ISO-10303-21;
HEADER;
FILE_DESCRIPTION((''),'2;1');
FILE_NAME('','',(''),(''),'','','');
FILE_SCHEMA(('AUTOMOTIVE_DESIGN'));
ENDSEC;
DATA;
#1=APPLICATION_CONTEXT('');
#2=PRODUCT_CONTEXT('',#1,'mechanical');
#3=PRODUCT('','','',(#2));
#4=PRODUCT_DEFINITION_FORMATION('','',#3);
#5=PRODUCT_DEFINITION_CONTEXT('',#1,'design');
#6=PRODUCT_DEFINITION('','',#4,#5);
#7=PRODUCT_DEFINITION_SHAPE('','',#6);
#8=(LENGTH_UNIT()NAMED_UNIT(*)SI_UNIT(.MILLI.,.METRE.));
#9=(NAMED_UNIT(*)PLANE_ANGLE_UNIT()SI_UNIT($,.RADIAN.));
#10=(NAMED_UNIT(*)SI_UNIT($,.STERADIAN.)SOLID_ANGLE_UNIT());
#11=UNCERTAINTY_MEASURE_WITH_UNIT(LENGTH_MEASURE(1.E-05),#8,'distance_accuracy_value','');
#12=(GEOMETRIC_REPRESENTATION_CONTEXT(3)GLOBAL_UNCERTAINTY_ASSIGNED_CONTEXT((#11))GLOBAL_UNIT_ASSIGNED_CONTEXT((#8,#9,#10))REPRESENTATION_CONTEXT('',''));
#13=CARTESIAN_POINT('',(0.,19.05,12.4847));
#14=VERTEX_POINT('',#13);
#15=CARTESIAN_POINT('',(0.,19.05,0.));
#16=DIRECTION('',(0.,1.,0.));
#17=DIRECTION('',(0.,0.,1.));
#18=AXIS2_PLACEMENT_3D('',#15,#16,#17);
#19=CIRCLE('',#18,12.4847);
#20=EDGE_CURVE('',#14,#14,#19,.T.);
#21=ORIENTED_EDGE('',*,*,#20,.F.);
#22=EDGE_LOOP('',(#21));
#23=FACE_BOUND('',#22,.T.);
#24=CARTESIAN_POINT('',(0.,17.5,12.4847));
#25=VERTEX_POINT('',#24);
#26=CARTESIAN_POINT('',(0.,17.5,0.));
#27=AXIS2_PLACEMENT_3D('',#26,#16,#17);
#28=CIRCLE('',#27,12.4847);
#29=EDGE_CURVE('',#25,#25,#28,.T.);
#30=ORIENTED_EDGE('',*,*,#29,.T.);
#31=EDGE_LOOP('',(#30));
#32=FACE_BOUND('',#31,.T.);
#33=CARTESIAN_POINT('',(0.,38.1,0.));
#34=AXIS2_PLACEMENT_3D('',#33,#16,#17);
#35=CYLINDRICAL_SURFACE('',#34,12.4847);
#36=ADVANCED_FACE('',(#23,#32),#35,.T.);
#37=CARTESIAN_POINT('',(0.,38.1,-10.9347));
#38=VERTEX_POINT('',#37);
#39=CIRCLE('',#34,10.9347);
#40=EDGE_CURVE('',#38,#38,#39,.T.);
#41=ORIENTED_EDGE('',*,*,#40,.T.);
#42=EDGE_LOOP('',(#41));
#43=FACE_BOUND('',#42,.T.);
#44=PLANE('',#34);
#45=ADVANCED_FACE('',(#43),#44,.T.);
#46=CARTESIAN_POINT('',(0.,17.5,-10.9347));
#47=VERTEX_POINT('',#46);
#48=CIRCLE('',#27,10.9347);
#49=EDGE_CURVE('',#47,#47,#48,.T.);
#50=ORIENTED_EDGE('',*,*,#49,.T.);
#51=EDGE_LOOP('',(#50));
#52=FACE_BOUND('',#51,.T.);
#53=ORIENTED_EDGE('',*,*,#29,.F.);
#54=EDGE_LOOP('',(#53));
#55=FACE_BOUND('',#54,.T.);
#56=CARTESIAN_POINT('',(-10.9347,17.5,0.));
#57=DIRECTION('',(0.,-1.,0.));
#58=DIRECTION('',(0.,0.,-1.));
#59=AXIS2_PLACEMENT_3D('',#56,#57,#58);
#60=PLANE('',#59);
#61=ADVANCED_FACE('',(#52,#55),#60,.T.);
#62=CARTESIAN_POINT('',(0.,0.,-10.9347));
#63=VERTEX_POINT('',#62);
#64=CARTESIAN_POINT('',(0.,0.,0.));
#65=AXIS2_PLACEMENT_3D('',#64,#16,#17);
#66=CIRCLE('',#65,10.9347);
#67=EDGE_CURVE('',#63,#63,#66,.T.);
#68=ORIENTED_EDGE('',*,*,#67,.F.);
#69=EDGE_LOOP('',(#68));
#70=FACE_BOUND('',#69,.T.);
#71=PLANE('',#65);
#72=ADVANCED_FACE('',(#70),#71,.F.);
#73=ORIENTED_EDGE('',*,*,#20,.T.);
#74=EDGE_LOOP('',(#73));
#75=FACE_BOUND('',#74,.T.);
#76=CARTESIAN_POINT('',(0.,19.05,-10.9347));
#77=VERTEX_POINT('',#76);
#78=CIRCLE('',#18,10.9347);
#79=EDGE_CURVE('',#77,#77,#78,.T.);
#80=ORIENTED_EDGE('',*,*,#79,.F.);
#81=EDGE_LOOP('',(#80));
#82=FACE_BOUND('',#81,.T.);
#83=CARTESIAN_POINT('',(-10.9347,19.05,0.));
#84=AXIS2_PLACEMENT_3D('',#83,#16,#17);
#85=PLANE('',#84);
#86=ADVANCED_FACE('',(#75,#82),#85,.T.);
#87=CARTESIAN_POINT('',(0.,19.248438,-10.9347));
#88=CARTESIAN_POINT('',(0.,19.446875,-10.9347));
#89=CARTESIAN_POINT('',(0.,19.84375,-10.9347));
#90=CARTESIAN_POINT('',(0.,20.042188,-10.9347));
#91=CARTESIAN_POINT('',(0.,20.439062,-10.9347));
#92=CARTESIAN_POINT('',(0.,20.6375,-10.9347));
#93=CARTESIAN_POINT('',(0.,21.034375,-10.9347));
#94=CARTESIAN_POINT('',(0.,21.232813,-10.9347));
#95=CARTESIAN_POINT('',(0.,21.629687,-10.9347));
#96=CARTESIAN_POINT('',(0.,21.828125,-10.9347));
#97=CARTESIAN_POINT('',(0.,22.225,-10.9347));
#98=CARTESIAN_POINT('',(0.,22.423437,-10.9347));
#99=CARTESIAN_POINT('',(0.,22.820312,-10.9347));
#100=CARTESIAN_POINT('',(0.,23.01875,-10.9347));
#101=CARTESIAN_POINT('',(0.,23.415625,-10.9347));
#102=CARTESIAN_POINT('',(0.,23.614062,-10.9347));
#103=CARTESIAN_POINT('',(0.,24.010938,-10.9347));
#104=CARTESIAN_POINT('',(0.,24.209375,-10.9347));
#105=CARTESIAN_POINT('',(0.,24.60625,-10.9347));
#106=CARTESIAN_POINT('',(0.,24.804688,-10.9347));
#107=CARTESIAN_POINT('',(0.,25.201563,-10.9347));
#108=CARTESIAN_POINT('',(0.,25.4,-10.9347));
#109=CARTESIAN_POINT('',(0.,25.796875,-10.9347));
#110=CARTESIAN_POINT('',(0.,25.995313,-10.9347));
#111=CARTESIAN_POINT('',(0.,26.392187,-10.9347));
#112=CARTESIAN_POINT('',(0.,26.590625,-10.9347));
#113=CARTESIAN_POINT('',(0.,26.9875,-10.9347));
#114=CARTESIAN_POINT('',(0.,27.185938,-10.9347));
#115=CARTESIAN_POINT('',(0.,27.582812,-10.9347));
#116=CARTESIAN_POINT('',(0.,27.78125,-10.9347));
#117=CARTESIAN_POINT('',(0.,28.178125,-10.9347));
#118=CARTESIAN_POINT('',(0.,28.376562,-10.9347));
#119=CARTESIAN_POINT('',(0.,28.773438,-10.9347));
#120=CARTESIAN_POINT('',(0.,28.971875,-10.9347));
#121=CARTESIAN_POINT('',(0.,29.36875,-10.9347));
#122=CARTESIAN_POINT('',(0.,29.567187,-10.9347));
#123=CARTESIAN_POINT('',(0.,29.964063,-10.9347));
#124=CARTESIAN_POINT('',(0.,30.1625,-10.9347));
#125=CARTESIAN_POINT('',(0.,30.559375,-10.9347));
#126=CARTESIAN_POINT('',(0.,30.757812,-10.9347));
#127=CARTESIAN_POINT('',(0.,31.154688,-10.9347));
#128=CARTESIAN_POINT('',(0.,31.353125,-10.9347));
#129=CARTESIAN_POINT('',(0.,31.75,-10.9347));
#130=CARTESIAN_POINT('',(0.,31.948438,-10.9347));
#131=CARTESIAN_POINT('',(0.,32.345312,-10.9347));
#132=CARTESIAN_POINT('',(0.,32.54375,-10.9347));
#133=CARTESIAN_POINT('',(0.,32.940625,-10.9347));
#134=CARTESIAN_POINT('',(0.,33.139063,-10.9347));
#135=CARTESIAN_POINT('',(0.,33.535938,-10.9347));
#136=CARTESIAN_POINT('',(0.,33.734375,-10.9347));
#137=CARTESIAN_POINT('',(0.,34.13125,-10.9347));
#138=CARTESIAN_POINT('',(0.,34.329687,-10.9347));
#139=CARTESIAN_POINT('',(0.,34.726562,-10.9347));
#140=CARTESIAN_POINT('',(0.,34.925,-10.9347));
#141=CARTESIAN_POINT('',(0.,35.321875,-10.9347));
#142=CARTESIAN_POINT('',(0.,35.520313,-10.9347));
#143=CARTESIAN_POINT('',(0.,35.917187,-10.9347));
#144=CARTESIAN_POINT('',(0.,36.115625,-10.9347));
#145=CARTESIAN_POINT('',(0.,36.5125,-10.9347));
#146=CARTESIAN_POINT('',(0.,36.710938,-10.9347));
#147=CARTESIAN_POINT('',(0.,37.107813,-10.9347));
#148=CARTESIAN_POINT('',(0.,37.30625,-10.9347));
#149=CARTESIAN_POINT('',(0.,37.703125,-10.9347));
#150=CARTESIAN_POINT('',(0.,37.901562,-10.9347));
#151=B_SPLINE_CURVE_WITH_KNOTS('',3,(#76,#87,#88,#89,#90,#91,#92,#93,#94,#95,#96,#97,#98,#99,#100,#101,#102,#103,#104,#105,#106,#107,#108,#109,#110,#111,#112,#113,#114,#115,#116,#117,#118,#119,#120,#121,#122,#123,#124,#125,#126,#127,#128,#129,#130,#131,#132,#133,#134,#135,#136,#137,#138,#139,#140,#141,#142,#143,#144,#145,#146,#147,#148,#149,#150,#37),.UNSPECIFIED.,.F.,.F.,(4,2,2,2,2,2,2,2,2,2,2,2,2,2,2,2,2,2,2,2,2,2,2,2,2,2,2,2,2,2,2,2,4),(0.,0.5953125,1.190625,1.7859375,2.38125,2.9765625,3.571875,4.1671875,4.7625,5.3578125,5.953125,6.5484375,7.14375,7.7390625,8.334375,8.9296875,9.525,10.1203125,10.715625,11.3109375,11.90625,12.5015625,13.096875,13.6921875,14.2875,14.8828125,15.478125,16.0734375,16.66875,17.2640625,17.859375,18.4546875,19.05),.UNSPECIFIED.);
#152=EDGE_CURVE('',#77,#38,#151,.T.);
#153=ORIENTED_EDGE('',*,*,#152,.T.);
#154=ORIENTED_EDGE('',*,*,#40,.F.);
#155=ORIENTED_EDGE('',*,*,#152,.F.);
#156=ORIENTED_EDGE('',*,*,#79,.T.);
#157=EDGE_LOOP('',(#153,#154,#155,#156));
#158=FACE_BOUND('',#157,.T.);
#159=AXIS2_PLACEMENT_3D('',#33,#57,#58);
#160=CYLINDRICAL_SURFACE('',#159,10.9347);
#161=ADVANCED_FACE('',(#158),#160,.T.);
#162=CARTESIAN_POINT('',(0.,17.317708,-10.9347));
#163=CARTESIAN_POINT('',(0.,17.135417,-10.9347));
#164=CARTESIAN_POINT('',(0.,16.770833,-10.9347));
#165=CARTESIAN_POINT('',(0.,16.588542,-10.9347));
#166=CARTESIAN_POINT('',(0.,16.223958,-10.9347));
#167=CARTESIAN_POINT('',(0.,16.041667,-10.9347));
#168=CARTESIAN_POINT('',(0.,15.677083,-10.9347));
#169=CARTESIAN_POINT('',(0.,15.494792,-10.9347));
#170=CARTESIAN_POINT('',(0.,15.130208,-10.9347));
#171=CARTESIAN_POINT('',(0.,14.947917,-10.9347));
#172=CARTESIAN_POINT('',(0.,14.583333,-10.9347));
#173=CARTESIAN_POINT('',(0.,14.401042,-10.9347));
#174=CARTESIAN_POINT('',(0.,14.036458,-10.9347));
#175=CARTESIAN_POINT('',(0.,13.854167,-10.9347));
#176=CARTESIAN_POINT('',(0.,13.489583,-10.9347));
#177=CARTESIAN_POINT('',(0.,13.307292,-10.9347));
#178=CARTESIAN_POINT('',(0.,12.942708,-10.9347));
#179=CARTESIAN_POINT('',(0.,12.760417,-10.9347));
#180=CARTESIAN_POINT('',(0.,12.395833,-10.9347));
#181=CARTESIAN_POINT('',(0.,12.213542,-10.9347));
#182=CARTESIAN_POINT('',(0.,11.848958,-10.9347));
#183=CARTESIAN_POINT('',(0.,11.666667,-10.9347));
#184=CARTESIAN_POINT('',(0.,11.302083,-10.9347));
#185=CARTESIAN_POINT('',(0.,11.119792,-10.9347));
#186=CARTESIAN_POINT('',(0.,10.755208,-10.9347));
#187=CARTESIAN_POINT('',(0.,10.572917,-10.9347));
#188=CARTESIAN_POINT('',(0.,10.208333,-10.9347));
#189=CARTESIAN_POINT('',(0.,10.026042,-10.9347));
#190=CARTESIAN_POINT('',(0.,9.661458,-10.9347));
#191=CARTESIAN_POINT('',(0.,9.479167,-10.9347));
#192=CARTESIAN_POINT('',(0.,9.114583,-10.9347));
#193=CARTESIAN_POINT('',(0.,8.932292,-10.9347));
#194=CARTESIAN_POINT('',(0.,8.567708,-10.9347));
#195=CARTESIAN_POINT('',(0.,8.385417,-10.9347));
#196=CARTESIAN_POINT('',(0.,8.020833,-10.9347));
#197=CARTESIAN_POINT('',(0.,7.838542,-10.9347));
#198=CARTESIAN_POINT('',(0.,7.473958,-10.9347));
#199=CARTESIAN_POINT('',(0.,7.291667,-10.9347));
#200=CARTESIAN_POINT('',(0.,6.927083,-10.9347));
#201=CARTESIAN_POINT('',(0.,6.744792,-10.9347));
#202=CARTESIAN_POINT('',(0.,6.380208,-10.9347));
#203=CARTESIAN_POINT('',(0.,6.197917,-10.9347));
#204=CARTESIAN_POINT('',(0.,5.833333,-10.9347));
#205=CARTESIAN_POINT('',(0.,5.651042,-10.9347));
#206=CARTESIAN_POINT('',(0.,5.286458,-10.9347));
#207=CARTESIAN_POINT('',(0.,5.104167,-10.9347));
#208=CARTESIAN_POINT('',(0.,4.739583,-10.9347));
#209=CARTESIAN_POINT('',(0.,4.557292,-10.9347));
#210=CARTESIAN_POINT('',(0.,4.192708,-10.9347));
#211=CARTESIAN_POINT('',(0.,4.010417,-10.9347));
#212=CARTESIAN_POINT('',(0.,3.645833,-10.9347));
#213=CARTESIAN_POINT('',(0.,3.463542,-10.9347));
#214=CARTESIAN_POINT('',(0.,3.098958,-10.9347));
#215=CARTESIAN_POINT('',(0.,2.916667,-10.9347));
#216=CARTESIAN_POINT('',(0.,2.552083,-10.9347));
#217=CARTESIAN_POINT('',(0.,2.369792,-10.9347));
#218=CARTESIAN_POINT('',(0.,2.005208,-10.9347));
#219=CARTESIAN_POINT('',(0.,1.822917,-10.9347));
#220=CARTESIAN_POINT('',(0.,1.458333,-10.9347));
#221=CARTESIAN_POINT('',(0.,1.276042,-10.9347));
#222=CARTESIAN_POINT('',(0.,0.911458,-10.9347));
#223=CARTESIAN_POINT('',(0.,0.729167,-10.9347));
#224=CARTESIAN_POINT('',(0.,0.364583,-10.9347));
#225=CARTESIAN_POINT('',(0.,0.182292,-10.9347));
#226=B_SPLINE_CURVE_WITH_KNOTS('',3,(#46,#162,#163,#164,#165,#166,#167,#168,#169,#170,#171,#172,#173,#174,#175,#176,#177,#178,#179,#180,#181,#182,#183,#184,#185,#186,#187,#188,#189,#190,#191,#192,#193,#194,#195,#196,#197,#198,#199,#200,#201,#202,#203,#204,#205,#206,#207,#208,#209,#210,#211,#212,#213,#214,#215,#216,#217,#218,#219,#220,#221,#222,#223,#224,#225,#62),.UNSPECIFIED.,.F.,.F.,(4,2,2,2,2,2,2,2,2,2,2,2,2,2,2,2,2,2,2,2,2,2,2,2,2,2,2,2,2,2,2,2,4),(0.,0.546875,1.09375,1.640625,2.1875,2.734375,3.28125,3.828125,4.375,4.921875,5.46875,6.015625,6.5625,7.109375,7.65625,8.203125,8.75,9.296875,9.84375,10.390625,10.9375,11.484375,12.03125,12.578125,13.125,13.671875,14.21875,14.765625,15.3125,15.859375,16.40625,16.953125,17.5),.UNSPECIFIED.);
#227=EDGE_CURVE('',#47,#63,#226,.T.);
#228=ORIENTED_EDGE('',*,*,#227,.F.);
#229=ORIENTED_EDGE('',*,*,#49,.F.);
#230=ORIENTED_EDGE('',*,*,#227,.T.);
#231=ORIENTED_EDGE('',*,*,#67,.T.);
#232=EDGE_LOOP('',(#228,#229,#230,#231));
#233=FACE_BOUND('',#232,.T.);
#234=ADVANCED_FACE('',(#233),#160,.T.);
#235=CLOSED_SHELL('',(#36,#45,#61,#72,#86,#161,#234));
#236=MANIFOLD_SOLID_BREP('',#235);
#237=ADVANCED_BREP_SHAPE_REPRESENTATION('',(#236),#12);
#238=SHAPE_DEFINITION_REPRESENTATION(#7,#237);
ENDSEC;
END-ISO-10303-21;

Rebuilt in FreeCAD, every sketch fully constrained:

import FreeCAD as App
import Part
import Sketcher
Q = App.Units.Quantity


def add_polygon(sketch, points):
    """Adds a closed chain of lines whose ends are joined by coincident constraints."""
    first, n = sketch.GeometryCount, len(points)
    for a, b in zip(points, points[1:] + points[:1]):
        sketch.addGeometry(Part.LineSegment(App.Vector(*a, 0), App.Vector(*b, 0)), False)
    for i in range(n):
        sketch.addConstraint(Sketcher.Constraint("Coincident", first + i, 2, first + (i + 1) % n, 1))

doc = App.newDocument("Part")
params = doc.addObject("Spreadsheet::Sheet", "Params")
for row, (alias, value) in enumerate([
    ("sketch1_diameter", "0.861 in"),
    ("pad1_length", "1.5 in"),
    ("revolution_angle", "360 deg"),
], start=1):
    params.set(f"A{row}", alias)
    params.set(f"B{row}", "=" + value)
    params.setAlias(f"B{row}", alias)

body = doc.addObject("PartDesign::Body", "Body")

sketch1 = body.newObject("Sketcher::SketchObject", "Sketch")
sketch1.AttachmentSupport = (doc.getObject("XZ_Plane"), [""])
sketch1.MapMode = "FlatFace"
sketch1.addGeometry(Part.Circle(App.Vector(0, 0, 0), App.Vector(0, 0, 1), 11), False)
sketch1.addConstraint(Sketcher.Constraint("Coincident", 0, 3, -1, 1))
sketch1.addConstraint(Sketcher.Constraint("Diameter", 0, Q("0.861 in")))
sketch1.setExpression("Constraints[1]", "Params.sketch1_diameter")
pad1 = body.newObject("PartDesign::Pad", "Pad")
pad1.Profile = sketch1
pad1.setExpression("Length", "Params.pad1_length")
pad1.Reversed = True

sketch2 = body.newObject("Sketcher::SketchObject", "Sketch001")
sketch2.AttachmentSupport = (doc.getObject("XY_Plane"), [""])
sketch2.MapMode = "FlatFace"
add_polygon(sketch2, [(-12.5, 19.1), (-12.5, 17.5), (-10.9, 17.5), (-10.9, 19.1)])
sketch2.addConstraint(Sketcher.Constraint("Vertical", 0))
sketch2.addConstraint(Sketcher.Constraint("Horizontal", 1))
sketch2.addConstraint(Sketcher.Constraint("Vertical", 2))
sketch2.addConstraint(Sketcher.Constraint("Horizontal", 3))
sketch2.addConstraint(Sketcher.Constraint("Equal", 3, 0))
sketch2.addConstraint(Sketcher.Constraint("DistanceY", -1, 1, 2, 2, Q("0.75 in")))
sketch2.addConstraint(Sketcher.Constraint("DistanceX", 1, 1, 1, 2, Q("1.55 mm")))
sketch2.addConstraint(Sketcher.Constraint("DistanceX", 1, 2, -1, 1, Q("0.4305 in")))
revolution = body.newObject("PartDesign::Revolution", "Revolution")
revolution.Profile = sketch2
revolution.ReferenceAxis = (sketch2, ["V_Axis"])
revolution.setExpression("Angle", "Params.revolution_angle")

doc.recompute()
